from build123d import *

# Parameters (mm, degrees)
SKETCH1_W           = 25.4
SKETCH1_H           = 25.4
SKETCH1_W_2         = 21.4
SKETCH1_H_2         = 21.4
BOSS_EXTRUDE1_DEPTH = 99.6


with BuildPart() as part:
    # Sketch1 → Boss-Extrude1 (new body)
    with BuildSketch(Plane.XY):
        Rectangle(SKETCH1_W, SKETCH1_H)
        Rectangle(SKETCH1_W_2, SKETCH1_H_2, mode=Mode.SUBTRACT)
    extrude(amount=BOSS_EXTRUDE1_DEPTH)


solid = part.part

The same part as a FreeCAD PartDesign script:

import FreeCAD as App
import Part
import Sketcher

V = App.Vector

doc = App.newDocument("Part")
body = doc.addObject("PartDesign::Body", "Body")

sketch1 = body.newObject("Sketcher::SketchObject", "Sketch")
sketch1.AttachmentSupport = (doc.getObject("XY_Plane"), [""])
sketch1.MapMode = "FlatFace"
sketch1.addGeometry(Part.LineSegment(V(-12.7, 12.7, 0), V(-12.7, -12.7, 0)), False)
sketch1.addGeometry(Part.LineSegment(V(-12.7, -12.7, 0), V(12.7, -12.7, 0)), False)
sketch1.addGeometry(Part.LineSegment(V(12.7, -12.7, 0), V(12.7, 12.7, 0)), False)
sketch1.addGeometry(Part.LineSegment(V(12.7, 12.7, 0), V(-12.7, 12.7, 0)), False)
sketch1.addGeometry(Part.LineSegment(V(10.7, -10.7, 0), V(-10.7, -10.7, 0)), False)
sketch1.addGeometry(Part.LineSegment(V(-10.7, -10.7, 0), V(-10.7, 10.7, 0)), False)
sketch1.addGeometry(Part.LineSegment(V(-10.7, 10.7, 0), V(10.7, 10.7, 0)), False)
sketch1.addGeometry(Part.LineSegment(V(10.7, 10.7, 0), V(10.7, -10.7, 0)), False)
sketch1.addConstraint(Sketcher.Constraint("Coincident", 0, 2, 1, 1))
sketch1.addConstraint(Sketcher.Constraint("Coincident", 1, 2, 2, 1))
sketch1.addConstraint(Sketcher.Constraint("Coincident", 2, 2, 3, 1))
sketch1.addConstraint(Sketcher.Constraint("Coincident", 3, 2, 0, 1))
sketch1.addConstraint(Sketcher.Constraint("Coincident", 4, 2, 5, 1))
sketch1.addConstraint(Sketcher.Constraint("Coincident", 5, 2, 6, 1))
sketch1.addConstraint(Sketcher.Constraint("Coincident", 6, 2, 7, 1))
sketch1.addConstraint(Sketcher.Constraint("Coincident", 7, 2, 4, 1))
sketch1.addConstraint(Sketcher.Constraint("Vertical", 0))
sketch1.addConstraint(Sketcher.Constraint("Horizontal", 1))
sketch1.addConstraint(Sketcher.Constraint("Vertical", 2))
sketch1.addConstraint(Sketcher.Constraint("Horizontal", 3))
sketch1.addConstraint(Sketcher.Constraint("Horizontal", 4))
sketch1.addConstraint(Sketcher.Constraint("Vertical", 5))
sketch1.addConstraint(Sketcher.Constraint("Horizontal", 6))
sketch1.addConstraint(Sketcher.Constraint("Vertical", 7))
sketch1.addConstraint(Sketcher.Constraint("Symmetric", 0, 2, 2, 2, -1, 1))
sketch1.addConstraint(Sketcher.Constraint("Symmetric", 4, 2, 6, 2, -1, 1))
sketch1.addConstraint(Sketcher.Constraint("Equal", 3, 0))
sketch1.addConstraint(Sketcher.Constraint("Equal", 6, 5))
sketch1.addConstraint(Sketcher.Constraint("DistanceX", 1, 1, 1, 2, 25.4))
sketch1.addConstraint(Sketcher.Constraint("DistanceX", 4, 2, 4, 1, 21.4))
pad1 = body.newObject("PartDesign::Pad", "Pad")
pad1.Profile = sketch1
pad1.Length = 99.6

doc.recompute()
